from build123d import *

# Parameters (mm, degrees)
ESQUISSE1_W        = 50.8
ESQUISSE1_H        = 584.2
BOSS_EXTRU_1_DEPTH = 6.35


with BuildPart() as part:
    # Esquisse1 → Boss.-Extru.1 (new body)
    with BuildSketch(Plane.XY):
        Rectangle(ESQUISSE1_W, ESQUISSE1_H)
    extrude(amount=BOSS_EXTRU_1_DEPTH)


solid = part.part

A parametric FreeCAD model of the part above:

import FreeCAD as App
import Part
import Sketcher
Q = App.Units.Quantity

doc = App.newDocument("Part")
body = doc.addObject("PartDesign::Body", "Body")

sketch1 = doc.addObject("Sketcher::SketchObject", "Sketch")
body.addObject(sketch1)
sketch1.AttachmentSupport = (doc.XY_Plane, [""])
sketch1.MapMode = "FlatFace"
sketch1.addGeometry([
    Part.LineSegment(App.Vector(-25, 292, 0), App.Vector(-25, -292, 0)),
    Part.LineSegment(App.Vector(-25, -292, 0), App.Vector(25, -292, 0)),
    Part.LineSegment(App.Vector(25, -292, 0), App.Vector(25, 292, 0)),
    Part.LineSegment(App.Vector(25, 292, 0), App.Vector(-25, 292, 0)),
], False)
sketch1.addConstraint([
    Sketcher.Constraint("Coincident", 0, 2, 1, 1),
    Sketcher.Constraint("Coincident", 1, 2, 2, 1),
    Sketcher.Constraint("Coincident", 2, 2, 3, 1),
    Sketcher.Constraint("Coincident", 3, 2, 0, 1),
    Sketcher.Constraint("Vertical", 0),
    Sketcher.Constraint("Horizontal", 1),
    Sketcher.Constraint("Vertical", 2),
    Sketcher.Constraint("Horizontal", 3),
    Sketcher.Constraint("Symmetric", 0, 2, 2, 2, -1, 1),
    Sketcher.Constraint("DistanceX", 1, 1, 1, 2, Q("2 in")),
    Sketcher.Constraint("DistanceY", 0, 2, 0, 1, Q("23 in")),
])
pad1 = doc.addObject("PartDesign::Pad", "Pad")
body.addObject(pad1)
pad1.Profile = sketch1
pad1.Length = Q("0.25 in")

doc.recompute()
